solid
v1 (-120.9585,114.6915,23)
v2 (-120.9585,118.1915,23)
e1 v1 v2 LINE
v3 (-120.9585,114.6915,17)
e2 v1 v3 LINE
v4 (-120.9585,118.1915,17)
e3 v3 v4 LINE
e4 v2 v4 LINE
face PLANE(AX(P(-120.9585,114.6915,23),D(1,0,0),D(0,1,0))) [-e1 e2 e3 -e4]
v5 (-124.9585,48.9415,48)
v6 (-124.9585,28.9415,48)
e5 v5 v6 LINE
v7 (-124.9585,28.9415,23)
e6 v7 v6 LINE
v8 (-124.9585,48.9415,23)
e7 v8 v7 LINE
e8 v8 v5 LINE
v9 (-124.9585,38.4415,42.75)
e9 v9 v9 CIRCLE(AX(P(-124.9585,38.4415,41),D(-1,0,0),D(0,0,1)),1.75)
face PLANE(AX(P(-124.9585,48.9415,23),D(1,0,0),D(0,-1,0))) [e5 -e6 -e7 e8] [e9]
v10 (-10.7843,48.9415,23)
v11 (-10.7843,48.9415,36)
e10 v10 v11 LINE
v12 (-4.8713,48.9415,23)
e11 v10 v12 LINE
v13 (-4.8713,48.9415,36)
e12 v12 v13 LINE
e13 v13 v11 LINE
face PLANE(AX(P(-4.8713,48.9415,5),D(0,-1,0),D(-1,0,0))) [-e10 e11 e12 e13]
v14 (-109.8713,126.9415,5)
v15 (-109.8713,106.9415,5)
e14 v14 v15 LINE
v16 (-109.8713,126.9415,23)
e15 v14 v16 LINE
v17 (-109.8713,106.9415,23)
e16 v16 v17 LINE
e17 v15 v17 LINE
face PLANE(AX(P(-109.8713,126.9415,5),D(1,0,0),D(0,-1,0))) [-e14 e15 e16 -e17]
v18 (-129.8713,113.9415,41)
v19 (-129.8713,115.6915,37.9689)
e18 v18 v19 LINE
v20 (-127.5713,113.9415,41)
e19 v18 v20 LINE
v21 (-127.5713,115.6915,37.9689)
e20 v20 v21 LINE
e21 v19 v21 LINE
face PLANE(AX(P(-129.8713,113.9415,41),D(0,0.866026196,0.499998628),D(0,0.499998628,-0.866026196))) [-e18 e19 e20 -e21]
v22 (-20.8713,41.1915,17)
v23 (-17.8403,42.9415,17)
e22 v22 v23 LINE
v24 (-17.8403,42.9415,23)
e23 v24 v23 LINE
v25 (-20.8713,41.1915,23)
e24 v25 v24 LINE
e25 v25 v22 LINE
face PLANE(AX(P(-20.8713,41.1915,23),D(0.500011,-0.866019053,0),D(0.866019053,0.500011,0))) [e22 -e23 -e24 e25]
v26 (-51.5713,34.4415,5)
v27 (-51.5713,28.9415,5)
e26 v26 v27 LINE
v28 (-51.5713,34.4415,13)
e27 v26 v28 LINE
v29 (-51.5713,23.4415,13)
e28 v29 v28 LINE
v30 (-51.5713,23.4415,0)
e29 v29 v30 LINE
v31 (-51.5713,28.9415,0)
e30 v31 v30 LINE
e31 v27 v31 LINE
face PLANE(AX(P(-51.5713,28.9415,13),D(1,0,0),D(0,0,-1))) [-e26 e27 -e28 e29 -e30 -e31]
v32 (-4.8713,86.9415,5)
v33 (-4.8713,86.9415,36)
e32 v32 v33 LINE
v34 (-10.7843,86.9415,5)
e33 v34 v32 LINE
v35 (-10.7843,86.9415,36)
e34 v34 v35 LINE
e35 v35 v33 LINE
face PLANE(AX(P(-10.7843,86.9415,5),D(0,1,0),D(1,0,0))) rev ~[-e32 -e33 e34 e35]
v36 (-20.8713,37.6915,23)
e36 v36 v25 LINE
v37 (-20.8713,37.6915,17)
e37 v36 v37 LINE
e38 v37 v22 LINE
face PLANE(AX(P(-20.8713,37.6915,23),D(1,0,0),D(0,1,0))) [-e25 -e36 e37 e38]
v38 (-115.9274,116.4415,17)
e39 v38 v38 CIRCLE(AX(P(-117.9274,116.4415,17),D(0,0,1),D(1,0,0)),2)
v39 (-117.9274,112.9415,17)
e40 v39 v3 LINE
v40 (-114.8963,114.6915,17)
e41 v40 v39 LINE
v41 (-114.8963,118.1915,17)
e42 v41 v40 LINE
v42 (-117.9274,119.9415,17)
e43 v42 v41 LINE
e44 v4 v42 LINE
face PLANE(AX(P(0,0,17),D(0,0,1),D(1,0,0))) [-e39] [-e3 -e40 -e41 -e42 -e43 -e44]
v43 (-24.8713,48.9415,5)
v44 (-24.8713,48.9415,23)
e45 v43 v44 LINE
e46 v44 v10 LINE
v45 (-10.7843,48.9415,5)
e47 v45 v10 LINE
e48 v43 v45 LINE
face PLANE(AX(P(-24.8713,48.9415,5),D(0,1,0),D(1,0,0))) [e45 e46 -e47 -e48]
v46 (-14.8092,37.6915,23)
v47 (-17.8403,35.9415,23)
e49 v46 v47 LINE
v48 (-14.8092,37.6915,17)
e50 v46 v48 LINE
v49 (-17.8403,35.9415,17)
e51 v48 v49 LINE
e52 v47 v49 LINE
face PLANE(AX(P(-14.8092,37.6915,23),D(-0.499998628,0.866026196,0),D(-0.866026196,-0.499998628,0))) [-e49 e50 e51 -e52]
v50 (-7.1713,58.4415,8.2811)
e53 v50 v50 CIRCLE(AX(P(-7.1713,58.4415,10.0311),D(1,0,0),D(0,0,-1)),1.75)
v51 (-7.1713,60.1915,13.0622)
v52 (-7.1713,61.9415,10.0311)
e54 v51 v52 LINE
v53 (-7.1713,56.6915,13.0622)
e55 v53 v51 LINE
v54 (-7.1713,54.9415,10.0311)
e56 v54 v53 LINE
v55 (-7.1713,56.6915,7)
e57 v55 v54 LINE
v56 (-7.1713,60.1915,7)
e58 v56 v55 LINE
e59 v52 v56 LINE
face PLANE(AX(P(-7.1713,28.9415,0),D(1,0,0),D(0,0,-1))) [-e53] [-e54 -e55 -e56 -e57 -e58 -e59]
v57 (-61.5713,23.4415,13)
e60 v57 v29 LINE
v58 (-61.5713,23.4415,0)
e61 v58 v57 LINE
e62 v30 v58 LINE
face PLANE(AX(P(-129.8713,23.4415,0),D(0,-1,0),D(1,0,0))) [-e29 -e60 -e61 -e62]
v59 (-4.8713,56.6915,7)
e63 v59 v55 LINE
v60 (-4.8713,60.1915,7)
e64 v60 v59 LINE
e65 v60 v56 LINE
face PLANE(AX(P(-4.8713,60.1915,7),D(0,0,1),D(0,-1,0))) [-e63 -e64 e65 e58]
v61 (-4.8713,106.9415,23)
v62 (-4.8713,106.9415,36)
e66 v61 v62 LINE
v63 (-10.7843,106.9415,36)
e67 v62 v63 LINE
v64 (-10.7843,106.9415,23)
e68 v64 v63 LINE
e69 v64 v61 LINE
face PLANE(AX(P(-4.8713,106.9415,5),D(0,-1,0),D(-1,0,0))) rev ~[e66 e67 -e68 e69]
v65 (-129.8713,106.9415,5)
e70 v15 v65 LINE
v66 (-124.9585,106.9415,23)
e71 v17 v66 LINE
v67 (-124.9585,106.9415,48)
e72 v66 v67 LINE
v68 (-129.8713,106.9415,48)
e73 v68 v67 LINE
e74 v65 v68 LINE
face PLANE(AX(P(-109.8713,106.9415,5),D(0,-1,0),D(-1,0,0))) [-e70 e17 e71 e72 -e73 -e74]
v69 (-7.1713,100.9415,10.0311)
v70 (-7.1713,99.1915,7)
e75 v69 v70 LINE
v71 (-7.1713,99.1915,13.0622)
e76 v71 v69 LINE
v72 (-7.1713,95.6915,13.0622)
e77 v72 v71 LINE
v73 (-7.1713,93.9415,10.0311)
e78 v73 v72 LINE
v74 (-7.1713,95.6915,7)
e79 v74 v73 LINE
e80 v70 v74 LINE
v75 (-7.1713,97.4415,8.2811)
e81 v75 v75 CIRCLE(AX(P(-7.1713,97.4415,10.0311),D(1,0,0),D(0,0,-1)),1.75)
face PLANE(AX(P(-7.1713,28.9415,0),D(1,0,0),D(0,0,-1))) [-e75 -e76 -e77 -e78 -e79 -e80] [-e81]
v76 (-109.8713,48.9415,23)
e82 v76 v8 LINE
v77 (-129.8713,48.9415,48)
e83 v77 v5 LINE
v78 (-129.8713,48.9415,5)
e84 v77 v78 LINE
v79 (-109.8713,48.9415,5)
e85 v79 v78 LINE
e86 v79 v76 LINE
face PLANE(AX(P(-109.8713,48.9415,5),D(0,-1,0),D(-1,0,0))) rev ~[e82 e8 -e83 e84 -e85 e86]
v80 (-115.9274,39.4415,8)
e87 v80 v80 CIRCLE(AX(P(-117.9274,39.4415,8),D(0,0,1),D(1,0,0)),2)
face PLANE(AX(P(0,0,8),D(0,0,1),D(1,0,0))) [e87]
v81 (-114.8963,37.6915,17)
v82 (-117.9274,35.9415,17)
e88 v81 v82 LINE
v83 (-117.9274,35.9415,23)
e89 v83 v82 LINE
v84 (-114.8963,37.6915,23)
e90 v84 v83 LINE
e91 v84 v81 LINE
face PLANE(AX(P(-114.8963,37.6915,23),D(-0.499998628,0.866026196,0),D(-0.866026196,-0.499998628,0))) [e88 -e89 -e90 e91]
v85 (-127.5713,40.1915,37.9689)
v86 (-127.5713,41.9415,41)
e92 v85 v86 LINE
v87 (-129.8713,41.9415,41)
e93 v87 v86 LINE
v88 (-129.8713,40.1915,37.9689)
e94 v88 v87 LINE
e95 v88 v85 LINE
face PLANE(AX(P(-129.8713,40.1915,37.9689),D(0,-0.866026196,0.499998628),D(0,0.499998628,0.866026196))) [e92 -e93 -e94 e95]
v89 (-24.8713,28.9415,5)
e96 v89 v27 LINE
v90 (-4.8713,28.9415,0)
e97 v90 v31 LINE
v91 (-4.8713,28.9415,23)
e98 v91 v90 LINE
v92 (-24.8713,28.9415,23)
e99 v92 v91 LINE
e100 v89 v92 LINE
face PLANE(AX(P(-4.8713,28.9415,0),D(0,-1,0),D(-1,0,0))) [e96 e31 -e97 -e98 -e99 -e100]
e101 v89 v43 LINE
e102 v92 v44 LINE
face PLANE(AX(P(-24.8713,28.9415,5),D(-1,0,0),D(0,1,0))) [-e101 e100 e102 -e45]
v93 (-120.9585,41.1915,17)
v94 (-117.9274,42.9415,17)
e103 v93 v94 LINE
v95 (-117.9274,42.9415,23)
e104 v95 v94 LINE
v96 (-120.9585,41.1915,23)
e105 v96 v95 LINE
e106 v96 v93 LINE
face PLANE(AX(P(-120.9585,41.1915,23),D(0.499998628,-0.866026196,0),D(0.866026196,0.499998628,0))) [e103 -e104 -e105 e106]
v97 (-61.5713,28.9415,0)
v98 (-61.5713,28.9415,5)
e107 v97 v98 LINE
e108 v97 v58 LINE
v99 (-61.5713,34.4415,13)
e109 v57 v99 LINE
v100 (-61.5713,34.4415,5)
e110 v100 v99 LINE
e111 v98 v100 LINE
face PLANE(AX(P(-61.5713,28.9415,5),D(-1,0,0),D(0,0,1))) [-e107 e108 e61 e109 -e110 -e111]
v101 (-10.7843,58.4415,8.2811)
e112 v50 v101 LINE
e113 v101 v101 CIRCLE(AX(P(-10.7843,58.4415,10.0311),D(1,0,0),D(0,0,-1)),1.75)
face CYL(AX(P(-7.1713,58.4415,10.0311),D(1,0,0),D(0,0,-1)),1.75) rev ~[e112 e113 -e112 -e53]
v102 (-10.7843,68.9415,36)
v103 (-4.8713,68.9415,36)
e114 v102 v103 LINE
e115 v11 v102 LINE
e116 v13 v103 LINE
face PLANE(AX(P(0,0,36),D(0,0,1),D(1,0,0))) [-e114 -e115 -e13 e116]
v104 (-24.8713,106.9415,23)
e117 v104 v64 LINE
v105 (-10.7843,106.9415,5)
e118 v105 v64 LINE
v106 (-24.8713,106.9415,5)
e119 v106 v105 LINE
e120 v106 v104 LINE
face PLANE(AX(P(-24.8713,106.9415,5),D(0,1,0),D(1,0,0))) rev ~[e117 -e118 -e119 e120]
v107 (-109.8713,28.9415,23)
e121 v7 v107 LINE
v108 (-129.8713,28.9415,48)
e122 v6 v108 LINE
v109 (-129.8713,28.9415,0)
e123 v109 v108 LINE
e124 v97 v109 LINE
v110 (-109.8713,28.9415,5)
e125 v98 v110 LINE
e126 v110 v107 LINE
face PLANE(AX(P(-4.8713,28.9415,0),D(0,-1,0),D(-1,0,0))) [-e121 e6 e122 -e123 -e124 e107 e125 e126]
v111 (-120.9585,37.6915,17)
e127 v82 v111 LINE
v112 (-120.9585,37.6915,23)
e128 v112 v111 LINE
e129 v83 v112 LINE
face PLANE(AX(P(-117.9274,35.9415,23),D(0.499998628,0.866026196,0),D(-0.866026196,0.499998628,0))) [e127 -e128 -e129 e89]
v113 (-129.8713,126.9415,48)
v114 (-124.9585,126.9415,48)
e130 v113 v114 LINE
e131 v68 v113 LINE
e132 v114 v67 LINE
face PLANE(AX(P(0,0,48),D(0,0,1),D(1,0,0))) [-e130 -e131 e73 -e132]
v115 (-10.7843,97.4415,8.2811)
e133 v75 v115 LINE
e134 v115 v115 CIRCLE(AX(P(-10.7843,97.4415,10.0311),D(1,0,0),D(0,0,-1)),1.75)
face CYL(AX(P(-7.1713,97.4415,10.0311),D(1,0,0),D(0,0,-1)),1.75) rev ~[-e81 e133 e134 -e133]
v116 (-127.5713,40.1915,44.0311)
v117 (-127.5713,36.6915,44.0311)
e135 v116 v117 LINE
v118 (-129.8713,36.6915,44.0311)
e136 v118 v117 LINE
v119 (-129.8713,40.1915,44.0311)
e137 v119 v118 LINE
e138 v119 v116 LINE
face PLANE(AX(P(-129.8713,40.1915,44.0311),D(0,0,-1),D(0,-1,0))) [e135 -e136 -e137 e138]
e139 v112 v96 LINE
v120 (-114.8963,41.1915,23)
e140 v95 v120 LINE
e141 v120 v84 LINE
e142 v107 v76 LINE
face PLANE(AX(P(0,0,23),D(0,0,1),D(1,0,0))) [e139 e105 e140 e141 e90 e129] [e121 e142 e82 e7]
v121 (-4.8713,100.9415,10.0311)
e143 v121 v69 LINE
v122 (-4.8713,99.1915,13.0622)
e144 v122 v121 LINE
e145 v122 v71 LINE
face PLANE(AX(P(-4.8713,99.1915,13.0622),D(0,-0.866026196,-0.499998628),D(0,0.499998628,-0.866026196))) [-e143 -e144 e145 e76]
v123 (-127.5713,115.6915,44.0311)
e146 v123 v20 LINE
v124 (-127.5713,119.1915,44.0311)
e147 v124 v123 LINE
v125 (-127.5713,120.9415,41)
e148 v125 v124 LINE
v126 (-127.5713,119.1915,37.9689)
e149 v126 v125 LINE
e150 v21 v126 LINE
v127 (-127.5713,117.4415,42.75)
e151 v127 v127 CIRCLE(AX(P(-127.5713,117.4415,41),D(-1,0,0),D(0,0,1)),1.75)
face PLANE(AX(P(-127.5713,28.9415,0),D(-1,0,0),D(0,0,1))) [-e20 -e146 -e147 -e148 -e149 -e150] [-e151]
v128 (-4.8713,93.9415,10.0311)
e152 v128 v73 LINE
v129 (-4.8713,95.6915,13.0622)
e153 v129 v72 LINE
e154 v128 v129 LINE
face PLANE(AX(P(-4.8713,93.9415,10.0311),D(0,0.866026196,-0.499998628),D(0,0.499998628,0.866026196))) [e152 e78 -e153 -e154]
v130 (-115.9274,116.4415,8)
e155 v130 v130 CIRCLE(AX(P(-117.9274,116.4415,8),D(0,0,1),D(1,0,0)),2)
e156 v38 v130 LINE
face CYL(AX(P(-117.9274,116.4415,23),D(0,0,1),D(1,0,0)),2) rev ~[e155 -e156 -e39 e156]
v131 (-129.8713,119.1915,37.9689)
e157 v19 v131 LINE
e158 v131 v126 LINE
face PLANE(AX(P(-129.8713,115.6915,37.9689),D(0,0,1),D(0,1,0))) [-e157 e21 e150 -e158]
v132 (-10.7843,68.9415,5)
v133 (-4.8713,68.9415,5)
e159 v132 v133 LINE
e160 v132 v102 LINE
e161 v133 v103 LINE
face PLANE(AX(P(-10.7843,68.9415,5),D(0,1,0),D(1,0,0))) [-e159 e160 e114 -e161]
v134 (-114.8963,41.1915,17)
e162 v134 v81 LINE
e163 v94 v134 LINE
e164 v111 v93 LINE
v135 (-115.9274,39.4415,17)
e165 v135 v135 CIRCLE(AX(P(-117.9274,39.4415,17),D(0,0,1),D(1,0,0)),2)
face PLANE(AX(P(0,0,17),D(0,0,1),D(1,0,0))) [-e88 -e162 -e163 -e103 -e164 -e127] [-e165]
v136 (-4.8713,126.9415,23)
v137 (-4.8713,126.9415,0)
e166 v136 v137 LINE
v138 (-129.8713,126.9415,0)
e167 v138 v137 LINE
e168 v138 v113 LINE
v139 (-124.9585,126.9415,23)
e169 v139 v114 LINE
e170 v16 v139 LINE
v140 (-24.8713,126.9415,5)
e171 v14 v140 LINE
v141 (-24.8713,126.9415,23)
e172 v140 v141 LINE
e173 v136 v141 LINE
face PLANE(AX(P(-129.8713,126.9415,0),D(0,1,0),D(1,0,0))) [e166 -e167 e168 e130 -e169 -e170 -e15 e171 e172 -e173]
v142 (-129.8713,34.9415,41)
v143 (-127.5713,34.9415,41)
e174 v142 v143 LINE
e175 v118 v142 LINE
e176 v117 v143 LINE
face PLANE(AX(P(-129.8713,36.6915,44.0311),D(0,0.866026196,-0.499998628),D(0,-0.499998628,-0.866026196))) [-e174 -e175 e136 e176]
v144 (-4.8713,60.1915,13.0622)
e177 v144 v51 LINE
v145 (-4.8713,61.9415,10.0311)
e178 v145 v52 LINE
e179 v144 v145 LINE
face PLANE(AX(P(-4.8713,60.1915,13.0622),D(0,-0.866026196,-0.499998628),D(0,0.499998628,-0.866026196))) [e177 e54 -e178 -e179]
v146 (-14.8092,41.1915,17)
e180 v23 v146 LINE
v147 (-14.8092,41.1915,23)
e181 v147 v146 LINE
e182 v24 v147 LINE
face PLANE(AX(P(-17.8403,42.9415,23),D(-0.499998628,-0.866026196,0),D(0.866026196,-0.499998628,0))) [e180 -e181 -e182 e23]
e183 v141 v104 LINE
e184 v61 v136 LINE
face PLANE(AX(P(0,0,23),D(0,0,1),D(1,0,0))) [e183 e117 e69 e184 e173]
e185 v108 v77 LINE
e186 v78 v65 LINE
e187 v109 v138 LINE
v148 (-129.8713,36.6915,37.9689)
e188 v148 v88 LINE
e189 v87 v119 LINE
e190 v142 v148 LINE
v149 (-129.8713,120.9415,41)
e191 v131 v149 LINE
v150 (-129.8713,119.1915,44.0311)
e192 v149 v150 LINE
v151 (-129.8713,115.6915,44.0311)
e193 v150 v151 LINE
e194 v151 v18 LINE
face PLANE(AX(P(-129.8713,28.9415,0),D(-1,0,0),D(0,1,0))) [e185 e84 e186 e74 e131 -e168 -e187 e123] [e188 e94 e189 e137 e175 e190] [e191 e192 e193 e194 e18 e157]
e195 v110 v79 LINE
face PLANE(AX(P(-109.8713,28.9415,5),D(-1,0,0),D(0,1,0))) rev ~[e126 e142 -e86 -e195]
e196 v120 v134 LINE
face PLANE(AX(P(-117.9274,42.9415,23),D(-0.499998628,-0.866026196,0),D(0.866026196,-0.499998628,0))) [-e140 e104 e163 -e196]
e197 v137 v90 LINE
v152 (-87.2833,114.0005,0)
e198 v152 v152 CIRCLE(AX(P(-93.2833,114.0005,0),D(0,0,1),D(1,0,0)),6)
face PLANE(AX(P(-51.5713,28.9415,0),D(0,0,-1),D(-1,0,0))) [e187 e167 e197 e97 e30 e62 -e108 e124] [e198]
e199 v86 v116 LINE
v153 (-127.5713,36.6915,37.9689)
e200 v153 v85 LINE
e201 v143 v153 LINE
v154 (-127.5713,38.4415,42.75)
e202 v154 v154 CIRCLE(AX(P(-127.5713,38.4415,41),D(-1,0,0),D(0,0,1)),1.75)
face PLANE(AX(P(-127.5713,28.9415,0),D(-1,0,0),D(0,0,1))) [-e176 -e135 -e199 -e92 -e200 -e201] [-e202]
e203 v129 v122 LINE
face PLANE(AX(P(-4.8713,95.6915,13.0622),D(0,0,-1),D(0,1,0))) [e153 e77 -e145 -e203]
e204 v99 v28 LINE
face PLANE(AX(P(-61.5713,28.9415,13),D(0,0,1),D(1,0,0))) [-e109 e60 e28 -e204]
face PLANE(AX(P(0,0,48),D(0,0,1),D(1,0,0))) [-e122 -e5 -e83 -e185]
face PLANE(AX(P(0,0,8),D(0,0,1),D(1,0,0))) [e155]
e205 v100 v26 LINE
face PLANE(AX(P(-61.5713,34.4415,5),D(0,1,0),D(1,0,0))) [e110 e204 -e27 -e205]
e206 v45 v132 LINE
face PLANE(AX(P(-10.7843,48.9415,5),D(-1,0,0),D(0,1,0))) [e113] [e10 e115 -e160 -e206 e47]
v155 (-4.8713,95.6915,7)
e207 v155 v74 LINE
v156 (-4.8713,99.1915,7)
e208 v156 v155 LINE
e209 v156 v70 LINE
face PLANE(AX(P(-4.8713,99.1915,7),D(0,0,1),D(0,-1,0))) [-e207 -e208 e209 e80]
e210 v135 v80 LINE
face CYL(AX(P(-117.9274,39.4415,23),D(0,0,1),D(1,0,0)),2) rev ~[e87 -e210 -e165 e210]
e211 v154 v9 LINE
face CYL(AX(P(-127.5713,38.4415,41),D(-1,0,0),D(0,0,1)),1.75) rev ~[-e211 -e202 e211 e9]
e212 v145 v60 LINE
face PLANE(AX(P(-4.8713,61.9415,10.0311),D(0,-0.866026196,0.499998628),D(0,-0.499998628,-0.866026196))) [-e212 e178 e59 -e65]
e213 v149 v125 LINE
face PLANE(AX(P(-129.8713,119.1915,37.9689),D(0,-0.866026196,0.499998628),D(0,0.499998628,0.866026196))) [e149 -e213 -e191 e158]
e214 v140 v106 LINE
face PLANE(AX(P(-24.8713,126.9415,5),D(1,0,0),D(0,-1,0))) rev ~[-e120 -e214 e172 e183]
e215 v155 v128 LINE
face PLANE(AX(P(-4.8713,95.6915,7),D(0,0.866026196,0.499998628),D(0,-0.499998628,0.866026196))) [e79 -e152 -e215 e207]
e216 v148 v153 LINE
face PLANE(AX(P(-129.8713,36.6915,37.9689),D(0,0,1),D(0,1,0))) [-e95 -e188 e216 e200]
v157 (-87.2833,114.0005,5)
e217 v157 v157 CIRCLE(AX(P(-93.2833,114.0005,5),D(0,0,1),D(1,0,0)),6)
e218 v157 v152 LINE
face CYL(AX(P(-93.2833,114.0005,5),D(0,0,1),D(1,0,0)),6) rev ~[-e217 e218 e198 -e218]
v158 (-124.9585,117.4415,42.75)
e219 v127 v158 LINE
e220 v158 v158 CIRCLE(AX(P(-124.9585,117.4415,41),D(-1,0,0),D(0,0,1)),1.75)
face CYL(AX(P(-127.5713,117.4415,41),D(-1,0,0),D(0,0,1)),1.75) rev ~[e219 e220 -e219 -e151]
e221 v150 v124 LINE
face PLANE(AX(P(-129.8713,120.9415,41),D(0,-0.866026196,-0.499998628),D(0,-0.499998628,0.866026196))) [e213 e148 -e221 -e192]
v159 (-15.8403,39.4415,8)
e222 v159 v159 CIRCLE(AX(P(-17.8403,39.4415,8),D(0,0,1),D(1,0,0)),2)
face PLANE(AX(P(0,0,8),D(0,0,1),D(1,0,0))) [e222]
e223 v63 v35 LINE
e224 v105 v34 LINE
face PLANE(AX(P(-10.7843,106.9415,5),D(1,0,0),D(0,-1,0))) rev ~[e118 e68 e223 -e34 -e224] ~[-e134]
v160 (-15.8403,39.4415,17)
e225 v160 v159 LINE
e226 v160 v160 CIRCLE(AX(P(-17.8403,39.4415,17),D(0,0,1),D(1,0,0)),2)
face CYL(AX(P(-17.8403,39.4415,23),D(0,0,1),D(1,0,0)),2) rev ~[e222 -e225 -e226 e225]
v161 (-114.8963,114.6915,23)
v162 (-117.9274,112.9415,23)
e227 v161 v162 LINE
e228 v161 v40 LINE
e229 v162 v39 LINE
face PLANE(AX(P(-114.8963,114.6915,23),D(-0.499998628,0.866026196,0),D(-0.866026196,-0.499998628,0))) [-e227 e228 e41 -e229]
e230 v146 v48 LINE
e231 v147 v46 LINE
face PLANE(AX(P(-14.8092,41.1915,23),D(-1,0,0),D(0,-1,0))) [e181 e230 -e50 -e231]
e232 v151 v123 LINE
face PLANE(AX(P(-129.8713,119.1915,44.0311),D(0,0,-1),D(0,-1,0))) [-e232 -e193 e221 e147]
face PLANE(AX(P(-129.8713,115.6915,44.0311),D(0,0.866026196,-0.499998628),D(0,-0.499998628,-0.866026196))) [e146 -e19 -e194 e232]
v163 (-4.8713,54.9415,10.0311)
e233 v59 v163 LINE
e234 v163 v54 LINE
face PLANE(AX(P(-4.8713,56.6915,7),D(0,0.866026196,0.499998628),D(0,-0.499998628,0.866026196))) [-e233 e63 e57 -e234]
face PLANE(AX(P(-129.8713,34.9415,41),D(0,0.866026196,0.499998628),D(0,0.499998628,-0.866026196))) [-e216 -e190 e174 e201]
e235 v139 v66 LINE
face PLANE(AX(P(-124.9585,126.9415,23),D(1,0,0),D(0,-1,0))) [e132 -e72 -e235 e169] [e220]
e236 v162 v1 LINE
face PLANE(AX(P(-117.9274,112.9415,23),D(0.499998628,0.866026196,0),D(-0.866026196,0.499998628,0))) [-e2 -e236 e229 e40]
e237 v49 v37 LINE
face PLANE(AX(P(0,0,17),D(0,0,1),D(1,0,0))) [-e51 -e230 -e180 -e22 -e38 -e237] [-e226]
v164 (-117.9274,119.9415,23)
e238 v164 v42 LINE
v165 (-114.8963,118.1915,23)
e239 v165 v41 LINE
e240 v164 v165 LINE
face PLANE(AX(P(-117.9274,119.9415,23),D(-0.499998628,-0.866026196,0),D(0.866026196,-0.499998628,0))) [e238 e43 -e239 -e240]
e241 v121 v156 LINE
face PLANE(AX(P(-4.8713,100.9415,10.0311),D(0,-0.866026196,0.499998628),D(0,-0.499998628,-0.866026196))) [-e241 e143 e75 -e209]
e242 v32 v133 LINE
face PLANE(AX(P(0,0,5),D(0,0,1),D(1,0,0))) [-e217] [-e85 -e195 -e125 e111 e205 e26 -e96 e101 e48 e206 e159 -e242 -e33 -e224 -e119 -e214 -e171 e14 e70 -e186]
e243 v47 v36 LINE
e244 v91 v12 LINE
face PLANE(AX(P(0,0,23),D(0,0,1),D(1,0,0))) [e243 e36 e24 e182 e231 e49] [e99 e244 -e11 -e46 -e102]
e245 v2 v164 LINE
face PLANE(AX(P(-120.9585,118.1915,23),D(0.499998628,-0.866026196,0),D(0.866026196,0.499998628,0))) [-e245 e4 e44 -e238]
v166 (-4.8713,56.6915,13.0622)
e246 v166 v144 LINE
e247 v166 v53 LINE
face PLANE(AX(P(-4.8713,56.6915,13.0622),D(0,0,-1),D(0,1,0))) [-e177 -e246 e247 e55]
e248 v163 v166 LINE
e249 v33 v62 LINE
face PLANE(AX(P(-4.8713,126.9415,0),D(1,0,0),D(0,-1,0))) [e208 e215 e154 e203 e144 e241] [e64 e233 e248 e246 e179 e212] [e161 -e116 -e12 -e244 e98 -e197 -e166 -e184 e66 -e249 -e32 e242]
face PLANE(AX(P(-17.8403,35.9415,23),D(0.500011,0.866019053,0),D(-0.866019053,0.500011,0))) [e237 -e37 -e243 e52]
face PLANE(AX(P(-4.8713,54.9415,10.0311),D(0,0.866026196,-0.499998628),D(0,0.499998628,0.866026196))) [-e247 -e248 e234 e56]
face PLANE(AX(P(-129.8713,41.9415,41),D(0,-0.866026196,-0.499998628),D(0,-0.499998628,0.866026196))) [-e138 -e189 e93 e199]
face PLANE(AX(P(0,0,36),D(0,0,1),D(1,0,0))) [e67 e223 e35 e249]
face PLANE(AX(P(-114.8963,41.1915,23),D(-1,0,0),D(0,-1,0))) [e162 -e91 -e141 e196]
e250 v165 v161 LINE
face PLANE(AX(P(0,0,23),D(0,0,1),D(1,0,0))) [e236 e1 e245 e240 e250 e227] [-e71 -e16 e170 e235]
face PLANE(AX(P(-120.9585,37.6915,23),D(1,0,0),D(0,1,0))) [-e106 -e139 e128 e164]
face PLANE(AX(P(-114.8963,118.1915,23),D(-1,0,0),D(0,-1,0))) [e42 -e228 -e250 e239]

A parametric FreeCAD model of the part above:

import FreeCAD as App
import Part
import Sketcher
from FreeCAD import Vector
Q = App.Units.Quantity

doc = App.newDocument("Part")
params = doc.addObject("Spreadsheet::Sheet", "Params")
for row, (alias, value) in enumerate([
    ("sketch1_width", "125 mm"),
    ("sketch1_height", "98 mm"),
    ("pad1_length", "5 mm"),
    ("sketch2_width", "20 mm"),
    ("pad2_length", "18 mm"),
    ("sketch3_height", "20 mm"),
    ("pad3_length", "25 mm"),
    ("sketch4_height", "20 mm"),
    ("pad4_length", "31 mm"),
    ("sketch5_width", "10 mm"),
    ("sketch5_height", "5.5 mm"),
    ("pad5_length", "8 mm"),
    ("sketch6_width", "10 mm"),
    ("sketch6_height", "13 mm"),
    ("pad6_length", "5.5 mm"),
    ("sketch7_width", "3.5 mm"),
    ("sketch7_length", "3.5 mm"),
    ("pocket1_length", "2.3 mm"),
    ("sketch8_diameter", "3.5 mm"),
    ("pocket2_length", "5 mm"),
    ("sketch9_width", "3.5 mm"),
    ("sketch9_length", "3.5 mm"),
    ("pocket3_length", "2.3 mm"),
    ("sketch10_diameter", "3.5 mm"),
    ("pocket4_length", "5 mm"),
    ("sketch11_height", "3.5 mm"),
    ("sketch11_length", "3.5 mm"),
    ("pocket5_length", "6 mm"),
    ("sketch12_diameter", "4 mm"),
    ("pocket6_length", "15 mm"),
    ("sketch13_diameter", "12 mm"),
    ("pocket7_length", "10 mm"),
], start=1):
    params.set(f"A{row}", alias)
    params.set(f"B{row}", "=" + value)
    params.setAlias(f"B{row}", alias)

body = doc.addObject("PartDesign::Body", "Body")

sketch1 = body.newObject("Sketcher::SketchObject", "Sketch")
sketch1.AttachmentSupport = (doc.getObject("XY_Plane"), [""])
sketch1.MapMode = "FlatFace"
sketch1.addGeometry([
    Part.LineSegment(Vector(-5, 127, 0), Vector(-130, 127, 0)),
    Part.LineSegment(Vector(-130, 127, 0), Vector(-130, 29, 0)),
    Part.LineSegment(Vector(-130, 29, 0), Vector(-5, 29, 0)),
    Part.LineSegment(Vector(-5, 29, 0), Vector(-5, 127, 0)),
], False)
sketch1.addConstraint([
    Sketcher.Constraint("Coincident", 0, 2, 1, 1),
    Sketcher.Constraint("Coincident", 1, 2, 2, 1),
    Sketcher.Constraint("Coincident", 2, 2, 3, 1),
    Sketcher.Constraint("Coincident", 3, 2, 0, 1),
    Sketcher.Constraint("Horizontal", 0),
    Sketcher.Constraint("Vertical", 1),
    Sketcher.Constraint("Horizontal", 2),
    Sketcher.Constraint("Vertical", 3),
    Sketcher.Constraint("DistanceX", 0, 2, 0, 1, 125.0),
    Sketcher.Constraint("DistanceY", 1, 2, 1, 1, 98.0),
    Sketcher.Constraint("DistanceX", 0, 2, -1, 1, 129.8713),
    Sketcher.Constraint("DistanceY", -1, 1, 0, 2, 126.9415),
])
sketch1.setExpression("Constraints[8]", "Params.sketch1_width")
sketch1.setExpression("Constraints[9]", "Params.sketch1_height")
pad1 = body.newObject("PartDesign::Pad", "Pad")
pad1.Profile = sketch1
pad1.setExpression("Length", "Params.pad1_length")

sketch2 = body.newObject("Sketcher::SketchObject", "Sketch001")
sketch2.AttachmentSupport = (doc.getObject("XY_Plane"), [""])
sketch2.MapMode = "FlatFace"
sketch2.AttachmentOffset = App.Placement(Vector(0, 0, 5), App.Rotation())
sketch2.addGeometry([
    Part.LineSegment(Vector(-110, 127, 0), Vector(-130, 127, 0)),
    Part.LineSegment(Vector(-130, 127, 0), Vector(-130, 107, 0)),
    Part.LineSegment(Vector(-130, 107, 0), Vector(-110, 107, 0)),
    Part.LineSegment(Vector(-110, 107, 0), Vector(-110, 127, 0)),
    Part.LineSegment(Vector(-110, 49, 0), Vector(-130, 49, 0)),
    Part.LineSegment(Vector(-130, 49, 0), Vector(-130, 29, 0)),
    Part.LineSegment(Vector(-130, 29, 0), Vector(-110, 29, 0)),
    Part.LineSegment(Vector(-110, 29, 0), Vector(-110, 49, 0)),
    Part.LineSegment(Vector(-5, 127, 0), Vector(-25, 127, 0)),
    Part.LineSegment(Vector(-25, 127, 0), Vector(-25, 107, 0)),
    Part.LineSegment(Vector(-25, 107, 0), Vector(-5, 107, 0)),
    Part.LineSegment(Vector(-5, 107, 0), Vector(-5, 127, 0)),
    Part.LineSegment(Vector(-25, 49, 0), Vector(-25, 29, 0)),
    Part.LineSegment(Vector(-25, 29, 0), Vector(-5, 29, 0)),
    Part.LineSegment(Vector(-5, 29, 0), Vector(-5, 49, 0)),
    Part.LineSegment(Vector(-5, 49, 0), Vector(-25, 49, 0)),
], False)
sketch2.addConstraint([
    Sketcher.Constraint("Coincident", 0, 2, 1, 1),
    Sketcher.Constraint("Coincident", 1, 2, 2, 1),
    Sketcher.Constraint("Coincident", 2, 2, 3, 1),
    Sketcher.Constraint("Coincident", 3, 2, 0, 1),
    Sketcher.Constraint("Coincident", 4, 2, 5, 1),
    Sketcher.Constraint("Coincident", 5, 2, 6, 1),
    Sketcher.Constraint("Coincident", 6, 2, 7, 1),
    Sketcher.Constraint("Coincident", 7, 2, 4, 1),
    Sketcher.Constraint("Coincident", 8, 2, 9, 1),
    Sketcher.Constraint("Coincident", 9, 2, 10, 1),
    Sketcher.Constraint("Coincident", 10, 2, 11, 1),
    Sketcher.Constraint("Coincident", 11, 2, 8, 1),
    Sketcher.Constraint("Coincident", 12, 2, 13, 1),
    Sketcher.Constraint("Coincident", 13, 2, 14, 1),
    Sketcher.Constraint("Coincident", 14, 2, 15, 1),
    Sketcher.Constraint("Coincident", 15, 2, 12, 1),
    Sketcher.Constraint("Horizontal", 0),
    Sketcher.Constraint("Vertical", 1),
    Sketcher.Constraint("Horizontal", 2),
    Sketcher.Constraint("Vertical", 3),
    Sketcher.Constraint("Horizontal", 4),
    Sketcher.Constraint("Vertical", 5),
    Sketcher.Constraint("Horizontal", 6),
    Sketcher.Constraint("Vertical", 7),
    Sketcher.Constraint("Horizontal", 8),
    Sketcher.Constraint("Vertical", 9),
    Sketcher.Constraint("Horizontal", 10),
    Sketcher.Constraint("Vertical", 11),
    Sketcher.Constraint("Vertical", 12),
    Sketcher.Constraint("Horizontal", 13),
    Sketcher.Constraint("Vertical", 14),
    Sketcher.Constraint("Horizontal", 15),
    Sketcher.Constraint("Horizontal", 3, 2, 8, 2),
    Sketcher.Constraint("Horizontal", 2, 2, 9, 2),
    Sketcher.Constraint("Horizontal", 6, 2, 12, 2),
    Sketcher.Constraint("Horizontal", 7, 2, 14, 2),
    Sketcher.Constraint("Vertical", 1, 2, 4, 2),
    Sketcher.Constraint("Vertical", 3, 2, 6, 2),
    Sketcher.Constraint("Vertical", 9, 2, 12, 2),
    Sketcher.Constraint("Vertical", 11, 2, 13, 2),
    Sketcher.Constraint("Equal", 6, 8),
    Sketcher.Constraint("Equal", 15, 1),
    Sketcher.Constraint("Equal", 3, 5),
    Sketcher.Constraint("DistanceX", 0, 2, 0, 1, 20.0),
    Sketcher.Constraint("DistanceY", 4, 2, 1, 2, 58.0),
    Sketcher.Constraint("DistanceX", 3, 2, 8, 2, 85.0),
    Sketcher.Constraint("DistanceX", 0, 2, -1, 1, 129.8713),
    Sketcher.Constraint("DistanceY", -1, 1, 0, 2, 126.9415),
])
sketch2.setExpression("Constraints[43]", "Params.sketch2_width")
pad2 = body.newObject("PartDesign::Pad", "Pad001")
pad2.Profile = sketch2
pad2.setExpression("Length", "Params.pad2_length")

sketch3 = body.newObject("Sketcher::SketchObject", "Sketch002")
sketch3.AttachmentSupport = (doc.getObject("XY_Plane"), [""])
sketch3.MapMode = "FlatFace"
sketch3.AttachmentOffset = App.Placement(Vector(0, 0, 23), App.Rotation())
sketch3.addGeometry([
    Part.LineSegment(Vector(-125, 48.9, 0), Vector(-129.9, 48.9, 0)),
    Part.LineSegment(Vector(-129.9, 48.9, 0), Vector(-129.9, 28.9, 0)),
    Part.LineSegment(Vector(-129.9, 28.9, 0), Vector(-125, 28.9, 0)),
    Part.LineSegment(Vector(-125, 28.9, 0), Vector(-125, 48.9, 0)),
    Part.LineSegment(Vector(-129.9, 126.9, 0), Vector(-129.9, 106.9, 0)),
    Part.LineSegment(Vector(-129.9, 106.9, 0), Vector(-125, 106.9, 0)),
    Part.LineSegment(Vector(-125, 106.9, 0), Vector(-125, 126.9, 0)),
    Part.LineSegment(Vector(-125, 126.9, 0), Vector(-129.9, 126.9, 0)),
], False)
sketch3.addConstraint([
    Sketcher.Constraint("Coincident", 0, 2, 1, 1),
    Sketcher.Constraint("Coincident", 1, 2, 2, 1),
    Sketcher.Constraint("Coincident", 2, 2, 3, 1),
    Sketcher.Constraint("Coincident", 3, 2, 0, 1),
    Sketcher.Constraint("Coincident", 4, 2, 5, 1),
    Sketcher.Constraint("Coincident", 5, 2, 6, 1),
    Sketcher.Constraint("Coincident", 6, 2, 7, 1),
    Sketcher.Constraint("Coincident", 7, 2, 4, 1),
    Sketcher.Constraint("Horizontal", 0),
    Sketcher.Constraint("Vertical", 1),
    Sketcher.Constraint("Horizontal", 2),
    Sketcher.Constraint("Vertical", 3),
    Sketcher.Constraint("Vertical", 4),
    Sketcher.Constraint("Horizontal", 5),
    Sketcher.Constraint("Vertical", 6),
    Sketcher.Constraint("Horizontal", 7),
    Sketcher.Constraint("Vertical", 1, 2, 4, 2),
    Sketcher.Constraint("Vertical", 3, 2, 5, 2),
    Sketcher.Constraint("Equal", 3, 4),
    Sketcher.Constraint("DistanceY", 1, 2, 1, 1, 20.0),
    Sketcher.Constraint("DistanceX", 0, 2, 0, 1, 4.9128),
    Sketcher.Constraint("DistanceY", 0, 2, 4, 2, 58.0),
    Sketcher.Constraint("DistanceX", 0, 2, -1, 1, 129.8713),
    Sketcher.Constraint("DistanceY", -1, 1, 0, 2, 48.9415),
])
sketch3.setExpression("Constraints[19]", "Params.sketch3_height")
pad3 = body.newObject("PartDesign::Pad", "Pad002")
pad3.Profile = sketch3
pad3.setExpression("Length", "Params.pad3_length")

sketch4 = body.newObject("Sketcher::SketchObject", "Sketch003")
sketch4.AttachmentSupport = (doc.getObject("XY_Plane"), [""])
sketch4.MapMode = "FlatFace"
sketch4.AttachmentOffset = App.Placement(Vector(0, 0, 5), App.Rotation())
sketch4.addGeometry([
    Part.LineSegment(Vector(-11, 49, 0), Vector(-5, 49, 0)),
    Part.LineSegment(Vector(-5, 49, 0), Vector(-5, 69, 0)),
    Part.LineSegment(Vector(-5, 69, 0), Vector(-11, 69, 0)),
    Part.LineSegment(Vector(-11, 69, 0), Vector(-11, 49, 0)),
    Part.LineSegment(Vector(-11, 87, 0), Vector(-5, 87, 0)),
    Part.LineSegment(Vector(-5, 87, 0), Vector(-5, 107, 0)),
    Part.LineSegment(Vector(-5, 107, 0), Vector(-11, 107, 0)),
    Part.LineSegment(Vector(-11, 107, 0), Vector(-11, 87, 0)),
], False)
sketch4.addConstraint([
    Sketcher.Constraint("Coincident", 0, 2, 1, 1),
    Sketcher.Constraint("Coincident", 1, 2, 2, 1),
    Sketcher.Constraint("Coincident", 2, 2, 3, 1),
    Sketcher.Constraint("Coincident", 3, 2, 0, 1),
    Sketcher.Constraint("Coincident", 4, 2, 5, 1),
    Sketcher.Constraint("Coincident", 5, 2, 6, 1),
    Sketcher.Constraint("Coincident", 6, 2, 7, 1),
    Sketcher.Constraint("Coincident", 7, 2, 4, 1),
    Sketcher.Constraint("Horizontal", 0),
    Sketcher.Constraint("Vertical", 1),
    Sketcher.Constraint("Horizontal", 2),
    Sketcher.Constraint("Vertical", 3),
    Sketcher.Constraint("Horizontal", 4),
    Sketcher.Constraint("Vertical", 5),
    Sketcher.Constraint("Horizontal", 6),
    Sketcher.Constraint("Vertical", 7),
    Sketcher.Constraint("Vertical", 1, 2, 4, 2),
    Sketcher.Constraint("Vertical", 3, 2, 6, 2),
    Sketcher.Constraint("Equal", 3, 5),
    Sketcher.Constraint("DistanceY", 1, 1, 1, 2, 20.0),
    Sketcher.Constraint("DistanceX", 0, 1, 0, 2, 5.913),
    Sketcher.Constraint("DistanceY", 1, 2, 4, 2, 18.0),
    Sketcher.Constraint("DistanceX", 0, 2, -1, 1, 4.8713),
    Sketcher.Constraint("DistanceY", -1, 1, 0, 2, 48.9415),
])
sketch4.setExpression("Constraints[19]", "Params.sketch4_height")
pad4 = body.newObject("PartDesign::Pad", "Pad003")
pad4.Profile = sketch4
pad4.setExpression("Length", "Params.pad4_length")

sketch5 = body.newObject("Sketcher::SketchObject", "Sketch004")
sketch5.AttachmentSupport = (doc.getObject("XY_Plane"), [""])
sketch5.MapMode = "FlatFace"
sketch5.AttachmentOffset = App.Placement(Vector(0, 0, 5), App.Rotation())
sketch5.addGeometry([
    Part.LineSegment(Vector(-62, 34, 0), Vector(-62, 29, 0)),
    Part.LineSegment(Vector(-62, 29, 0), Vector(-52, 29, 0)),
    Part.LineSegment(Vector(-52, 29, 0), Vector(-52, 34, 0)),
    Part.LineSegment(Vector(-52, 34, 0), Vector(-62, 34, 0)),
], False)
sketch5.addConstraint([
    Sketcher.Constraint("Coincident", 0, 2, 1, 1),
    Sketcher.Constraint("Coincident", 1, 2, 2, 1),
    Sketcher.Constraint("Coincident", 2, 2, 3, 1),
    Sketcher.Constraint("Coincident", 3, 2, 0, 1),
    Sketcher.Constraint("Vertical", 0),
    Sketcher.Constraint("Horizontal", 1),
    Sketcher.Constraint("Vertical", 2),
    Sketcher.Constraint("Horizontal", 3),
    Sketcher.Constraint("DistanceX", 1, 1, 1, 2, 10.0),
    Sketcher.Constraint("DistanceY", 0, 2, 0, 1, 5.5),
    Sketcher.Constraint("DistanceX", 0, 2, -1, 1, 61.5713),
    Sketcher.Constraint("DistanceY", -1, 1, 0, 2, 28.9415),
])
sketch5.setExpression("Constraints[8]", "Params.sketch5_width")
sketch5.setExpression("Constraints[9]", "Params.sketch5_height")
pad5 = body.newObject("PartDesign::Pad", "Pad004")
pad5.Profile = sketch5
pad5.setExpression("Length", "Params.pad5_length")

sketch6 = body.newObject("Sketcher::SketchObject", "Sketch005")
sketch6.AttachmentSupport = (doc.getObject("XZ_Plane"), [""])
sketch6.MapMode = "FlatFace"
sketch6.AttachmentOffset = App.Placement(Vector(0, 0, -28.9415), App.Rotation())
sketch6.addGeometry([
    Part.LineSegment(Vector(-62, 13, 0), Vector(-62, 0, 0)),
    Part.LineSegment(Vector(-62, 0, 0), Vector(-52, 0, 0)),
    Part.LineSegment(Vector(-52, 0, 0), Vector(-52, 13, 0)),
    Part.LineSegment(Vector(-52, 13, 0), Vector(-62, 13, 0)),
], False)
sketch6.addConstraint([
    Sketcher.Constraint("Coincident", 0, 2, 1, 1),
    Sketcher.Constraint("Coincident", 1, 2, 2, 1),
    Sketcher.Constraint("Coincident", 2, 2, 3, 1),
    Sketcher.Constraint("Coincident", 3, 2, 0, 1),
    Sketcher.Constraint("Vertical", 0),
    Sketcher.Constraint("Horizontal", 1),
    Sketcher.Constraint("Vertical", 2),
    Sketcher.Constraint("Horizontal", 3),
    Sketcher.Constraint("PointOnObject", 0, 2, -1),
    Sketcher.Constraint("DistanceX", 1, 1, 1, 2, 10.0),
    Sketcher.Constraint("DistanceY", 0, 2, 0, 1, 13.0),
    Sketcher.Constraint("DistanceX", 0, 2, -1, 1, 61.5713),
])
sketch6.setExpression("Constraints[9]", "Params.sketch6_width")
sketch6.setExpression("Constraints[10]", "Params.sketch6_height")
pad6 = body.newObject("PartDesign::Pad", "Pad005")
pad6.Profile = sketch6
pad6.setExpression("Length", "Params.pad6_length")

sketch7 = body.newObject("Sketcher::SketchObject", "Sketch006")
sketch7.AttachmentSupport = (doc.getObject("YZ_Plane"), [""])
sketch7.MapMode = "FlatFace"
sketch7.AttachmentOffset = App.Placement(Vector(0, 0, -4.8713), App.Rotation())
sketch7.addGeometry([
    Part.LineSegment(Vector(56.7, 7, 0), Vector(60.2, 7, 0)),
    Part.LineSegment(Vector(60.2, 7, 0), Vector(61.9, 10, 0)),
    Part.LineSegment(Vector(61.9, 10, 0), Vector(60.2, 13.1, 0)),
    Part.LineSegment(Vector(60.2, 13.1, 0), Vector(56.7, 13.1, 0)),
    Part.LineSegment(Vector(56.7, 13.1, 0), Vector(54.9, 10, 0)),
    Part.LineSegment(Vector(54.9, 10, 0), Vector(56.7, 7, 0)),
    Part.LineSegment(Vector(95.7, 7, 0), Vector(99.2, 7, 0)),
    Part.LineSegment(Vector(99.2, 7, 0), Vector(100.9, 10, 0)),
    Part.LineSegment(Vector(100.9, 10, 0), Vector(99.2, 13.1, 0)),
    Part.LineSegment(Vector(99.2, 13.1, 0), Vector(95.7, 13.1, 0)),
    Part.LineSegment(Vector(95.7, 13.1, 0), Vector(93.9, 10, 0)),
    Part.LineSegment(Vector(93.9, 10, 0), Vector(95.7, 7, 0)),
], False)
sketch7.addConstraint([
    Sketcher.Constraint("Coincident", 0, 2, 1, 1),
    Sketcher.Constraint("Coincident", 1, 2, 2, 1),
    Sketcher.Constraint("Coincident", 2, 2, 3, 1),
    Sketcher.Constraint("Coincident", 3, 2, 4, 1),
    Sketcher.Constraint("Coincident", 4, 2, 5, 1),
    Sketcher.Constraint("Coincident", 5, 2, 0, 1),
    Sketcher.Constraint("Coincident", 6, 2, 7, 1),
    Sketcher.Constraint("Coincident", 7, 2, 8, 1),
    Sketcher.Constraint("Coincident", 8, 2, 9, 1),
    Sketcher.Constraint("Coincident", 9, 2, 10, 1),
    Sketcher.Constraint("Coincident", 10, 2, 11, 1),
    Sketcher.Constraint("Coincident", 11, 2, 6, 1),
    Sketcher.Constraint("Horizontal", 0),
    Sketcher.Constraint("Horizontal", 3),
    Sketcher.Constraint("Horizontal", 6),
    Sketcher.Constraint("Horizontal", 9),
    Sketcher.Constraint("Parallel", 1, 4),
    Sketcher.Constraint("Parallel", 2, 5),
    Sketcher.Constraint("Parallel", 4, 7),
    Sketcher.Constraint("Parallel", 5, 8),
    Sketcher.Constraint("Parallel", 7, 10),
    Sketcher.Constraint("Parallel", 8, 11),
    Sketcher.Constraint("Horizontal", 1, 2, 4, 2),
    Sketcher.Constraint("Horizontal", 5, 2, 6, 2),
    Sketcher.Constraint("Horizontal", 4, 2, 7, 2),
    Sketcher.Constraint("Horizontal", 3, 2, 8, 2),
    Sketcher.Constraint("Horizontal", 7, 2, 10, 2),
    Sketcher.Constraint("Vertical", 0, 2, 2, 2),
    Sketcher.Constraint("Vertical", 3, 2, 5, 2),
    Sketcher.Constraint("Equal", 3, 6),
    Sketcher.Constraint("DistanceX", 0, 1, 0, 2, 3.5),
    Sketcher.Constraint("DistanceY", -1, 1, 0, 2, 7.0),
    Sketcher.Constraint("DistanceX", 4, 2, 1, 2, 7.0),
    Sketcher.Constraint("Distance", 1, 3.5),
    Sketcher.Constraint("DistanceX", 0, 2, 6, 2, 39.0),
    Sketcher.Constraint("DistanceX", -1, 1, 0, 2, 60.1915),
])
sketch7.setExpression("Constraints[30]", "Params.sketch7_width")
sketch7.setExpression("Constraints[33]", "Params.sketch7_length")
pocket1 = body.newObject("PartDesign::Pocket", "Pocket")
pocket1.Profile = sketch7
pocket1.setExpression("Length", "Params.pocket1_length")

sketch8 = body.newObject("Sketcher::SketchObject", "Sketch007")
sketch8.AttachmentSupport = (doc.getObject("YZ_Plane"), [""])
sketch8.MapMode = "FlatFace"
sketch8.AttachmentOffset = App.Placement(Vector(0, 0, -7.1713), App.Rotation())
sketch8.addGeometry([
    Part.Circle(Vector(58.4, 10, 0), Vector(0, 0, 1), 1.8),
    Part.Circle(Vector(97.4, 10, 0), Vector(0, 0, 1), 1.8),
], False)
sketch8.addConstraint([
    Sketcher.Constraint("Equal", 0, 1),
    Sketcher.Constraint("Horizontal", 0, 3, 1, 3),
    Sketcher.Constraint("Diameter", 0, 3.5),
    Sketcher.Constraint("DistanceX", 0, 3, 1, 3, 39.0),
    Sketcher.Constraint("DistanceY", -1, 1, 0, 3, 10.031),
    Sketcher.Constraint("DistanceX", -1, 1, 0, 3, 58.4415),
])
sketch8.setExpression("Constraints[2]", "Params.sketch8_diameter")
pocket2 = body.newObject("PartDesign::Pocket", "Pocket001")
pocket2.Profile = sketch8
pocket2.setExpression("Length", "Params.pocket2_length")

sketch9 = body.newObject("Sketcher::SketchObject", "Sketch008")
sketch9.AttachmentSupport = (doc.getObject("YZ_Plane"), [""])
sketch9.MapMode = "FlatFace"
sketch9.AttachmentOffset = App.Placement(Vector(0, 0, -129.8713), App.Rotation())
sketch9.addGeometry([
    Part.LineSegment(Vector(119.2, 38, 0), Vector(115.7, 38, 0)),
    Part.LineSegment(Vector(115.7, 38, 0), Vector(113.9, 41, 0)),
    Part.LineSegment(Vector(113.9, 41, 0), Vector(115.7, 44, 0)),
    Part.LineSegment(Vector(115.7, 44, 0), Vector(119.2, 44, 0)),
    Part.LineSegment(Vector(119.2, 44, 0), Vector(120.9, 41, 0)),
    Part.LineSegment(Vector(120.9, 41, 0), Vector(119.2, 38, 0)),
    Part.LineSegment(Vector(40.2, 38, 0), Vector(36.7, 38, 0)),
    Part.LineSegment(Vector(36.7, 38, 0), Vector(34.9, 41, 0)),
    Part.LineSegment(Vector(34.9, 41, 0), Vector(36.7, 44, 0)),
    Part.LineSegment(Vector(36.7, 44, 0), Vector(40.2, 44, 0)),
    Part.LineSegment(Vector(40.2, 44, 0), Vector(41.9, 41, 0)),
    Part.LineSegment(Vector(41.9, 41, 0), Vector(40.2, 38, 0)),
], False)
sketch9.addConstraint([
    Sketcher.Constraint("Coincident", 0, 2, 1, 1),
    Sketcher.Constraint("Coincident", 1, 2, 2, 1),
    Sketcher.Constraint("Coincident", 2, 2, 3, 1),
    Sketcher.Constraint("Coincident", 3, 2, 4, 1),
    Sketcher.Constraint("Coincident", 4, 2, 5, 1),
    Sketcher.Constraint("Coincident", 5, 2, 0, 1),
    Sketcher.Constraint("Coincident", 6, 2, 7, 1),
    Sketcher.Constraint("Coincident", 7, 2, 8, 1),
    Sketcher.Constraint("Coincident", 8, 2, 9, 1),
    Sketcher.Constraint("Coincident", 9, 2, 10, 1),
    Sketcher.Constraint("Coincident", 10, 2, 11, 1),
    Sketcher.Constraint("Coincident", 11, 2, 6, 1),
    Sketcher.Constraint("Horizontal", 0),
    Sketcher.Constraint("Horizontal", 3),
    Sketcher.Constraint("Horizontal", 6),
    Sketcher.Constraint("Horizontal", 9),
    Sketcher.Constraint("Parallel", 1, 4),
    Sketcher.Constraint("Parallel", 2, 5),
    Sketcher.Constraint("Parallel", 4, 7),
    Sketcher.Constraint("Parallel", 5, 8),
    Sketcher.Constraint("Parallel", 7, 10),
    Sketcher.Constraint("Parallel", 8, 11),
    Sketcher.Constraint("Horizontal", 1, 2, 4, 2),
    Sketcher.Constraint("Horizontal", 5, 2, 6, 2),
    Sketcher.Constraint("Horizontal", 4, 2, 7, 2),
    Sketcher.Constraint("Horizontal", 3, 2, 8, 2),
    Sketcher.Constraint("Horizontal", 7, 2, 10, 2),
    Sketcher.Constraint("Vertical", 0, 2, 2, 2),
    Sketcher.Constraint("Vertical", 3, 2, 5, 2),
    Sketcher.Constraint("Equal", 3, 6),
    Sketcher.Constraint("DistanceX", 0, 2, 0, 1, 3.5),
    Sketcher.Constraint("DistanceX", 1, 2, 4, 2, 7.0),
    Sketcher.Constraint("Distance", 1, 3.5),
    Sketcher.Constraint("DistanceY", -1, 1, 1, 2, 41.0),
    Sketcher.Constraint("DistanceX", 6, 2, 0, 2, 79.0),
    Sketcher.Constraint("DistanceX", -1, 1, 0, 2, 115.6915),
])
sketch9.setExpression("Constraints[30]", "Params.sketch9_width")
sketch9.setExpression("Constraints[32]", "Params.sketch9_length")
pocket3 = body.newObject("PartDesign::Pocket", "Pocket002")
pocket3.Profile = sketch9
pocket3.setExpression("Length", "Params.pocket3_length")
pocket3.Reversed = True

sketch10 = body.newObject("Sketcher::SketchObject", "Sketch009")
sketch10.AttachmentSupport = (doc.getObject("YZ_Plane"), [""])
sketch10.MapMode = "FlatFace"
sketch10.AttachmentOffset = App.Placement(Vector(0, 0, -127.5713), App.Rotation())
sketch10.addGeometry([
    Part.Circle(Vector(117.4, 41, 0), Vector(0, 0, 1), 1.8),
    Part.Circle(Vector(38.4, 41, 0), Vector(0, 0, 1), 1.8),
], False)
sketch10.addConstraint([
    Sketcher.Constraint("Equal", 0, 1),
    Sketcher.Constraint("Horizontal", 0, 3, 1, 3),
    Sketcher.Constraint("Diameter", 0, 3.5),
    Sketcher.Constraint("DistanceY", -1, 1, 0, 3, 41.0),
    Sketcher.Constraint("DistanceX", 1, 3, 0, 3, 79.0),
    Sketcher.Constraint("DistanceX", -1, 1, 0, 3, 117.4415),
])
sketch10.setExpression("Constraints[2]", "Params.sketch10_diameter")
pocket4 = body.newObject("PartDesign::Pocket", "Pocket003")
pocket4.Profile = sketch10
pocket4.setExpression("Length", "Params.pocket4_length")
pocket4.Reversed = True

sketch11 = body.newObject("Sketcher::SketchObject", "Sketch010")
sketch11.AttachmentSupport = (doc.getObject("XY_Plane"), [""])
sketch11.MapMode = "FlatFace"
sketch11.AttachmentOffset = App.Placement(Vector(0, 0, 23), App.Rotation())
sketch11.addGeometry([
    Part.LineSegment(Vector(-20.9, 41.2, 0), Vector(-20.9, 37.7, 0)),
    Part.LineSegment(Vector(-20.9, 37.7, 0), Vector(-17.8, 35.9, 0)),
    Part.LineSegment(Vector(-17.8, 35.9, 0), Vector(-14.8, 37.7, 0)),
    Part.LineSegment(Vector(-14.8, 37.7, 0), Vector(-14.8, 41.2, 0)),
    Part.LineSegment(Vector(-14.8, 41.2, 0), Vector(-17.8, 42.9, 0)),
    Part.LineSegment(Vector(-17.8, 42.9, 0), Vector(-20.9, 41.2, 0)),
    Part.LineSegment(Vector(-121, 41.2, 0), Vector(-121, 37.7, 0)),
    Part.LineSegment(Vector(-121, 37.7, 0), Vector(-117.9, 35.9, 0)),
    Part.LineSegment(Vector(-117.9, 35.9, 0), Vector(-114.9, 37.7, 0)),
    Part.LineSegment(Vector(-114.9, 37.7, 0), Vector(-114.9, 41.2, 0)),
    Part.LineSegment(Vector(-114.9, 41.2, 0), Vector(-117.9, 42.9, 0)),
    Part.LineSegment(Vector(-117.9, 42.9, 0), Vector(-121, 41.2, 0)),
    Part.LineSegment(Vector(-121, 118.2, 0), Vector(-121, 114.7, 0)),
    Part.LineSegment(Vector(-121, 114.7, 0), Vector(-117.9, 112.9, 0)),
    Part.LineSegment(Vector(-117.9, 112.9, 0), Vector(-114.9, 114.7, 0)),
    Part.LineSegment(Vector(-114.9, 114.7, 0), Vector(-114.9, 118.2, 0)),
    Part.LineSegment(Vector(-114.9, 118.2, 0), Vector(-117.9, 119.9, 0)),
    Part.LineSegment(Vector(-117.9, 119.9, 0), Vector(-121, 118.2, 0)),
], False)
sketch11.addConstraint([
    Sketcher.Constraint("Coincident", 0, 2, 1, 1),
    Sketcher.Constraint("Coincident", 1, 2, 2, 1),
    Sketcher.Constraint("Coincident", 2, 2, 3, 1),
    Sketcher.Constraint("Coincident", 3, 2, 4, 1),
    Sketcher.Constraint("Coincident", 4, 2, 5, 1),
    Sketcher.Constraint("Coincident", 5, 2, 0, 1),
    Sketcher.Constraint("Coincident", 6, 2, 7, 1),
    Sketcher.Constraint("Coincident", 7, 2, 8, 1),
    Sketcher.Constraint("Coincident", 8, 2, 9, 1),
    Sketcher.Constraint("Coincident", 9, 2, 10, 1),
    Sketcher.Constraint("Coincident", 10, 2, 11, 1),
    Sketcher.Constraint("Coincident", 11, 2, 6, 1),
    Sketcher.Constraint("Coincident", 12, 2, 13, 1),
    Sketcher.Constraint("Coincident", 13, 2, 14, 1),
    Sketcher.Constraint("Coincident", 14, 2, 15, 1),
    Sketcher.Constraint("Coincident", 15, 2, 16, 1),
    Sketcher.Constraint("Coincident", 16, 2, 17, 1),
    Sketcher.Constraint("Coincident", 17, 2, 12, 1),
    Sketcher.Constraint("Vertical", 0),
    Sketcher.Constraint("Vertical", 3),
    Sketcher.Constraint("Vertical", 6),
    Sketcher.Constraint("Vertical", 9),
    Sketcher.Constraint("Vertical", 12),
    Sketcher.Constraint("Vertical", 15),
    Sketcher.Constraint("Parallel", 1, 4),
    Sketcher.Constraint("Parallel", 2, 5),
    Sketcher.Constraint("Parallel", 4, 7),
    Sketcher.Constraint("Parallel", 5, 8),
    Sketcher.Constraint("Parallel", 7, 10),
    Sketcher.Constraint("Parallel", 8, 11),
    Sketcher.Constraint("Parallel", 10, 13),
    Sketcher.Constraint("Parallel", 11, 14),
    Sketcher.Constraint("Parallel", 13, 16),
    Sketcher.Constraint("Parallel", 14, 17),
    Sketcher.Constraint("Horizontal", 0, 2, 2, 2),
    Sketcher.Constraint("Horizontal", 3, 2, 5, 2),
    Sketcher.Constraint("Horizontal", 2, 2, 6, 2),
    Sketcher.Constraint("Horizontal", 1, 2, 7, 2),
    Sketcher.Constraint("Horizontal", 6, 2, 8, 2),
    Sketcher.Constraint("Horizontal", 5, 2, 9, 2),
    Sketcher.Constraint("Horizontal", 4, 2, 10, 2),
    Sketcher.Constraint("Horizontal", 12, 2, 14, 2),
    Sketcher.Constraint("Horizontal", 15, 2, 17, 2),
    Sketcher.Constraint("Vertical", 1, 2, 4, 2),
    Sketcher.Constraint("Vertical", 11, 2, 12, 2),
    Sketcher.Constraint("Vertical", 10, 2, 13, 2),
    Sketcher.Constraint("Equal", 9, 12),
    Sketcher.Constraint("DistanceY", 0, 2, 0, 1, 3.5),
    Sketcher.Constraint("Distance", 1, 3.5),
    Sketcher.Constraint("Angle", 1, Q("-30.0007 deg")),
    Sketcher.Constraint("DistanceY", 6, 2, 12, 2, 77.0),
    Sketcher.Constraint("DistanceX", 7, 2, 0, 2, 97.056),
    Sketcher.Constraint("DistanceX", 0, 2, -1, 1, 20.8713),
    Sketcher.Constraint("DistanceY", -1, 1, 0, 2, 37.6915),
])
sketch11.setExpression("Constraints[47]", "Params.sketch11_height")
sketch11.setExpression("Constraints[48]", "Params.sketch11_length")
pocket5 = body.newObject("PartDesign::Pocket", "Pocket004")
pocket5.Profile = sketch11
pocket5.setExpression("Length", "Params.pocket5_length")

sketch12 = body.newObject("Sketcher::SketchObject", "Sketch011")
sketch12.AttachmentSupport = (doc.getObject("XY_Plane"), [""])
sketch12.MapMode = "FlatFace"
sketch12.AttachmentOffset = App.Placement(Vector(0, 0, 23), App.Rotation())
sketch12.addGeometry([
    Part.Circle(Vector(-17.8, 39.4, 0), Vector(0, 0, 1), 2),
    Part.Circle(Vector(-117.9, 39.4, 0), Vector(0, 0, 1), 2),
    Part.Circle(Vector(-117.9, 116.4, 0), Vector(0, 0, 1), 2),
], False)
sketch12.addConstraint([
    Sketcher.Constraint("Equal", 0, 1),
    Sketcher.Constraint("Equal", 1, 2),
    Sketcher.Constraint("Horizontal", 0, 3, 1, 3),
    Sketcher.Constraint("Vertical", 1, 3, 2, 3),
    Sketcher.Constraint("Diameter", 0, 4.0),
    Sketcher.Constraint("DistanceY", 1, 3, 2, 3, 77.0),
    Sketcher.Constraint("DistanceX", 1, 3, 0, 3, 100.087),
    Sketcher.Constraint("DistanceX", 0, 3, -1, 1, 17.8403),
    Sketcher.Constraint("DistanceY", -1, 1, 0, 3, 39.4415),
])
sketch12.setExpression("Constraints[4]", "Params.sketch12_diameter")
pocket6 = body.newObject("PartDesign::Pocket", "Pocket005")
pocket6.Profile = sketch12
pocket6.setExpression("Length", "Params.pocket6_length")

sketch13 = body.newObject("Sketcher::SketchObject", "Sketch012")
sketch13.AttachmentSupport = (doc.getObject("XY_Plane"), [""])
sketch13.MapMode = "FlatFace"
sketch13.AttachmentOffset = App.Placement(Vector(0, 0, 5), App.Rotation())
sketch13.addGeometry(Part.Circle(Vector(-93, 114, 0), Vector(0, 0, 1), 6), False)
sketch13.addConstraint([
    Sketcher.Constraint("Diameter", 0, 12.0),
    Sketcher.Constraint("DistanceX", 0, 3, -1, 1, 93.2833),
    Sketcher.Constraint("DistanceY", -1, 1, 0, 3, 114.0005),
])
sketch13.setExpression("Constraints[0]", "Params.sketch13_diameter")
pocket7 = body.newObject("PartDesign::Pocket", "Pocket006")
pocket7.Profile = sketch13
pocket7.setExpression("Length", "Params.pocket7_length")

doc.recompute()
